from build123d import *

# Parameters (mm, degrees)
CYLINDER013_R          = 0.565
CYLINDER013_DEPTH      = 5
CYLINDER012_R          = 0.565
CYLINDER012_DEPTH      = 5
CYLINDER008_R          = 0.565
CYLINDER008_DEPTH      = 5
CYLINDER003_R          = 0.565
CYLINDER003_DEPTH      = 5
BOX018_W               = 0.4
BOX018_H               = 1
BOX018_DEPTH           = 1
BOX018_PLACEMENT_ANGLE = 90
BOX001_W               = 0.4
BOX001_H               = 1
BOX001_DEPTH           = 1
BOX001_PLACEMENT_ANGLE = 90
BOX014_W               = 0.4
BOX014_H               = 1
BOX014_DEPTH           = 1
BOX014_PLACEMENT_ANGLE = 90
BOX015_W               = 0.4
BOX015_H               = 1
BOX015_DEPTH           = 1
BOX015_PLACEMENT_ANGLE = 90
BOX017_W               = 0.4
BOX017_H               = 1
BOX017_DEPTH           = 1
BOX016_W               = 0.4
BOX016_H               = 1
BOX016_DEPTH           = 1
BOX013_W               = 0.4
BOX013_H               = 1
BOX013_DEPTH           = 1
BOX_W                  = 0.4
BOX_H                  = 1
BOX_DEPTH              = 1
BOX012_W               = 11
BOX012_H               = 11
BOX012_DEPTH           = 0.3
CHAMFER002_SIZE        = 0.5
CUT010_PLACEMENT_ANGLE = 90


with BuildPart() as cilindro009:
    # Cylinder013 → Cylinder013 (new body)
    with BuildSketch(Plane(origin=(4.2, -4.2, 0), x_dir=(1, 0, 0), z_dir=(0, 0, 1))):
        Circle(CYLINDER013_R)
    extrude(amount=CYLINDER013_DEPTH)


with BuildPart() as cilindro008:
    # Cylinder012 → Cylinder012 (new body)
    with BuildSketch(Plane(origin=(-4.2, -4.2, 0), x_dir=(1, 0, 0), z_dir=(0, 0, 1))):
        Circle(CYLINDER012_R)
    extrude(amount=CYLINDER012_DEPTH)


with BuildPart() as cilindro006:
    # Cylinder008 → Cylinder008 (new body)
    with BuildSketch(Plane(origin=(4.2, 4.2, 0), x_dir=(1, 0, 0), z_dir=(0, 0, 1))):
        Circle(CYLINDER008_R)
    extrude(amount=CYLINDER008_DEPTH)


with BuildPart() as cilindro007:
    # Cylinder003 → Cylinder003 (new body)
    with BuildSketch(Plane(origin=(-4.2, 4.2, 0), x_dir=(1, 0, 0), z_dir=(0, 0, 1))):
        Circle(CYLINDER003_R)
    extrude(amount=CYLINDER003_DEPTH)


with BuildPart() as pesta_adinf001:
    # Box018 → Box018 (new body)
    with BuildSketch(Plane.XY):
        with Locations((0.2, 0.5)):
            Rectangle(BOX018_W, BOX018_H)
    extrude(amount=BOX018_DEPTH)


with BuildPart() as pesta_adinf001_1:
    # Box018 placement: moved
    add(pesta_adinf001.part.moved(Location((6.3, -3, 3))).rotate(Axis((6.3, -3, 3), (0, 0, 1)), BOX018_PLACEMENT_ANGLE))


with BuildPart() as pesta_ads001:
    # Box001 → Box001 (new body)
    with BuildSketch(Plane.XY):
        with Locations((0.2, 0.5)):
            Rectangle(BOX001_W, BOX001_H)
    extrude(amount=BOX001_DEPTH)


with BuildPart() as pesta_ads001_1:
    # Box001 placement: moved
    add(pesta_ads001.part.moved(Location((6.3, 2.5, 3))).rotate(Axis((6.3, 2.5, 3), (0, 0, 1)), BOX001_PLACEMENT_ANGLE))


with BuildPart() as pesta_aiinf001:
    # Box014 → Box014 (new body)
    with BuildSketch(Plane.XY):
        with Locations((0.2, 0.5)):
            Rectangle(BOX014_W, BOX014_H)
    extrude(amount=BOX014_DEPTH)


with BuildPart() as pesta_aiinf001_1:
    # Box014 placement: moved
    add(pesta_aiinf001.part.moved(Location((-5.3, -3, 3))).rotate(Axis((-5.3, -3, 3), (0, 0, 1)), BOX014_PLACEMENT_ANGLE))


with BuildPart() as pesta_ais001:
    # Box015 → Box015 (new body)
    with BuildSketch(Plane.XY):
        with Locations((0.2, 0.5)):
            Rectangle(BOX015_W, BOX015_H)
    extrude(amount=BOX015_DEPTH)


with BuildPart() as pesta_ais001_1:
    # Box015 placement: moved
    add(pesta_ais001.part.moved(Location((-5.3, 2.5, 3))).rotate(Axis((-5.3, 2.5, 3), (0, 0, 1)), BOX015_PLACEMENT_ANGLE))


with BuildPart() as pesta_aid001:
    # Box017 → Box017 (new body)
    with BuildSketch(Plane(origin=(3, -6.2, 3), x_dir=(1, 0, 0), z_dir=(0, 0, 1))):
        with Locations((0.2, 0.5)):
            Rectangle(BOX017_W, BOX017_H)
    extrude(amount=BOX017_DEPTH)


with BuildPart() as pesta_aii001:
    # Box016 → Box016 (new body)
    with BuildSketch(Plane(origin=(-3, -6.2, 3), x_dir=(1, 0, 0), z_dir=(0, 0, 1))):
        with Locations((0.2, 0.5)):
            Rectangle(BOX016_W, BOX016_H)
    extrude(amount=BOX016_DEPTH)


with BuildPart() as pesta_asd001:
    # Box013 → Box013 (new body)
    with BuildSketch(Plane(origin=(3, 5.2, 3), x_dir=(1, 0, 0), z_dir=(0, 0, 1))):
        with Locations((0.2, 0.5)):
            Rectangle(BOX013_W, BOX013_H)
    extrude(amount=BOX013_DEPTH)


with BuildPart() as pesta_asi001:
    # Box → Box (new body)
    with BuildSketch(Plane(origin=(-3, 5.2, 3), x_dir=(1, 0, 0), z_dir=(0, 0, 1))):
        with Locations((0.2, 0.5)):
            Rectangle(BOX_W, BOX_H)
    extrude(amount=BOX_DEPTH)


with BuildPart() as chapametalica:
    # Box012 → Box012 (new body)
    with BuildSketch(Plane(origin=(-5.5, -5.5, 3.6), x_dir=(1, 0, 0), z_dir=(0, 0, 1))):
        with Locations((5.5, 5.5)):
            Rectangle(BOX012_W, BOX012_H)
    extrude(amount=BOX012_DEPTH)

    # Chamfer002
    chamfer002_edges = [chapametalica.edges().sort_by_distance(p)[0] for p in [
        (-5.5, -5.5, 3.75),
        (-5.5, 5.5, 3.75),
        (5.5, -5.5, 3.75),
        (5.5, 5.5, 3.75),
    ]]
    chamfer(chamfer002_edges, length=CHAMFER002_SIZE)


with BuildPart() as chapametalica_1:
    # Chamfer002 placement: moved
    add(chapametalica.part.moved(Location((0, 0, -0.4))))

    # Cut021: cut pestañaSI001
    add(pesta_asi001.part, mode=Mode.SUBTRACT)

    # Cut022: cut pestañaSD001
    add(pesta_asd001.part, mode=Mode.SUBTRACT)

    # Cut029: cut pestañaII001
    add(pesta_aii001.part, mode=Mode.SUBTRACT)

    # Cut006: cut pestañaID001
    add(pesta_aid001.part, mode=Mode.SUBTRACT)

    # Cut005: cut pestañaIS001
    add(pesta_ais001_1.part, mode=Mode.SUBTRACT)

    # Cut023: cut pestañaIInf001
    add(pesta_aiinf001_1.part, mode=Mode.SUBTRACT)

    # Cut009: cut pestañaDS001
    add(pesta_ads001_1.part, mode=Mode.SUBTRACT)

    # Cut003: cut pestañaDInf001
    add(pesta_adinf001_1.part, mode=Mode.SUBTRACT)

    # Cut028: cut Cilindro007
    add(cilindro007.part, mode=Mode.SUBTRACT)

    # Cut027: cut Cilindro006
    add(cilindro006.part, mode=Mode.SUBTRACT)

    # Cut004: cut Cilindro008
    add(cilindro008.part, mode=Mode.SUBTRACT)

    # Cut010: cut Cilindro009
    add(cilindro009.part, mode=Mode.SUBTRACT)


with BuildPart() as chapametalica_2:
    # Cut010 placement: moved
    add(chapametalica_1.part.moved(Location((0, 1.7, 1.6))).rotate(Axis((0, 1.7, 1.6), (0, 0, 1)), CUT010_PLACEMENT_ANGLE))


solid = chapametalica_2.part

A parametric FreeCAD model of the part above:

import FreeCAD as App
import Part
import Sketcher
from FreeCAD import Vector
Q = App.Units.Quantity


def edges_at(feature, points):
    """Names of the edges that pass closest to the given points."""
    edges = feature.Shape.Edges
    near = lambda p: min(range(len(edges)), key=lambda i: edges[i].distToShape(Part.Vertex(*p))[0])
    return sorted({f"Edge{near(p) + 1}" for p in points})


def add_polygon(sketch, points):
    """Adds a closed chain of lines whose ends are joined by coincident constraints."""
    first, n = sketch.GeometryCount, len(points)
    for a, b in zip(points, points[1:] + points[:1]):
        sketch.addGeometry(Part.LineSegment(App.Vector(*a, 0), App.Vector(*b, 0)), False)
    for i in range(n):
        sketch.addConstraint(Sketcher.Constraint("Coincident", first + i, 2, first + (i + 1) % n, 1))

doc = App.newDocument("Part")
body = doc.addObject("PartDesign::Body", "Body")

# Sketch on XY plane
sketch1 = doc.addObject("Sketcher::SketchObject", "Sketch")
body.addObject(sketch1)
sketch1.AttachmentSupport = (doc.XY_Plane, [""])
sketch1.MapMode = "FlatFace"
sketch1.addGeometry(Part.Circle(Vector(4.2, -4.2, 0), Vector(0, 0, 1), 0.6), False)
sketch1.addConstraint([
    Sketcher.Constraint("Diameter", 0, Q("1.13 mm")),
    Sketcher.Constraint("DistanceX", -1, 1, 0, 3, Q("4.2 mm")),
    Sketcher.Constraint("DistanceY", 0, 3, -1, 1, Q("4.2 mm")),
])
pad1 = doc.addObject("PartDesign::Pad", "Pad")
body.addObject(pad1)
pad1.Profile = sketch1
pad1.Length = 5
body2 = doc.addObject("PartDesign::Body", "Body001")

# Sketch on XY plane
sketch2 = doc.addObject("Sketcher::SketchObject", "Sketch001")
body2.addObject(sketch2)
sketch2.AttachmentSupport = (doc.getObject("XY_Plane001"), [""])
sketch2.MapMode = "FlatFace"
sketch2.addGeometry(Part.Circle(Vector(-4.2, -4.2, 0), Vector(0, 0, 1), 0.6), False)
sketch2.addConstraint([
    Sketcher.Constraint("Diameter", 0, Q("1.13 mm")),
    Sketcher.Constraint("DistanceX", 0, 3, -1, 1, Q("4.2 mm")),
    Sketcher.Constraint("DistanceY", 0, 3, -1, 1, Q("4.2 mm")),
])
pad2 = doc.addObject("PartDesign::Pad", "Pad001")
body2.addObject(pad2)
pad2.Profile = sketch2
pad2.Length = 5
body3 = doc.addObject("PartDesign::Body", "Body002")

# Sketch on XY plane
sketch3 = doc.addObject("Sketcher::SketchObject", "Sketch002")
body3.addObject(sketch3)
sketch3.AttachmentSupport = (doc.getObject("XY_Plane002"), [""])
sketch3.MapMode = "FlatFace"
sketch3.addGeometry(Part.Circle(Vector(4.2, 4.2, 0), Vector(0, 0, 1), 0.6), False)
sketch3.addConstraint([
    Sketcher.Constraint("Diameter", 0, Q("1.13 mm")),
    Sketcher.Constraint("DistanceX", -1, 1, 0, 3, Q("4.2 mm")),
    Sketcher.Constraint("DistanceY", -1, 1, 0, 3, Q("4.2 mm")),
])
pad3 = doc.addObject("PartDesign::Pad", "Pad002")
body3.addObject(pad3)
pad3.Profile = sketch3
pad3.Length = 5
body4 = doc.addObject("PartDesign::Body", "Body003")

# Sketch on XY plane
sketch4 = doc.addObject("Sketcher::SketchObject", "Sketch003")
body4.addObject(sketch4)
sketch4.AttachmentSupport = (doc.getObject("XY_Plane003"), [""])
sketch4.MapMode = "FlatFace"
sketch4.addGeometry(Part.Circle(Vector(-4.2, 4.2, 0), Vector(0, 0, 1), 0.6), False)
sketch4.addConstraint([
    Sketcher.Constraint("Diameter", 0, Q("1.13 mm")),
    Sketcher.Constraint("DistanceX", 0, 3, -1, 1, Q("4.2 mm")),
    Sketcher.Constraint("DistanceY", -1, 1, 0, 3, Q("4.2 mm")),
])
pad4 = doc.addObject("PartDesign::Pad", "Pad003")
body4.addObject(pad4)
pad4.Profile = sketch4
pad4.Length = 5
body5 = doc.addObject("PartDesign::Body", "Body004")

# Sketch on XY plane
sketch5 = doc.addObject("Sketcher::SketchObject", "Sketch004")
body5.addObject(sketch5)
sketch5.AttachmentSupport = (doc.getObject("XY_Plane004"), [""])
sketch5.MapMode = "FlatFace"
add_polygon(sketch5, [(0, 1), (0, 0), (0.4, 0), (0.4, 1)])  # lines 0-3
sketch5.addConstraint([
    Sketcher.Constraint("Vertical", 0),
    Sketcher.Constraint("Horizontal", 1),
    Sketcher.Constraint("Vertical", 2),
    Sketcher.Constraint("Horizontal", 3),
    Sketcher.Constraint("Coincident", 0, 2, -1, 1),
    Sketcher.Constraint("DistanceY", 0, 2, 0, 1, Q("1 mm")),
    Sketcher.Constraint("DistanceX", 1, 1, 1, 2, Q("0.4 mm")),
])
pad5 = doc.addObject("PartDesign::Pad", "Pad004")
body5.addObject(pad5)
pad5.Profile = sketch5
pad5.Length = 1
body6 = doc.addObject("PartDesign::Body", "Body005")
doc.recompute()

body5.Placement = App.Placement(Vector(6.3, -3, 3), App.Rotation(Vector(0, 0, 1), 90))
boolean = doc.addObject("PartDesign::Boolean", "Boolean")
body6.addObject(boolean)
boolean.Type = "Fuse"
boolean.addObjects([body5])
body7 = doc.addObject("PartDesign::Body", "Body006")

# Sketch on XY plane
sketch6 = doc.addObject("Sketcher::SketchObject", "Sketch005")
body7.addObject(sketch6)
sketch6.AttachmentSupport = (doc.getObject("XY_Plane006"), [""])
sketch6.MapMode = "FlatFace"
add_polygon(sketch6, [(0, 1), (0, 0), (0.4, 0), (0.4, 1)])  # lines 0-3
sketch6.addConstraint([
    Sketcher.Constraint("Vertical", 0),
    Sketcher.Constraint("Horizontal", 1),
    Sketcher.Constraint("Vertical", 2),
    Sketcher.Constraint("Horizontal", 3),
    Sketcher.Constraint("Coincident", 0, 2, -1, 1),
    Sketcher.Constraint("DistanceY", 0, 2, 0, 1, Q("1 mm")),
    Sketcher.Constraint("DistanceX", 1, 1, 1, 2, Q("0.4 mm")),
])
pad6 = doc.addObject("PartDesign::Pad", "Pad005")
body7.addObject(pad6)
pad6.Profile = sketch6
pad6.Length = 1
body8 = doc.addObject("PartDesign::Body", "Body007")
doc.recompute()

body7.Placement = App.Placement(Vector(6.3, 2.5, 3), App.Rotation(Vector(0, 0, 1), 90))
boolean2 = doc.addObject("PartDesign::Boolean", "Boolean001")
body8.addObject(boolean2)
boolean2.Type = "Fuse"
boolean2.addObjects([body7])
body9 = doc.addObject("PartDesign::Body", "Body008")

# Sketch on XY plane
sketch7 = doc.addObject("Sketcher::SketchObject", "Sketch006")
body9.addObject(sketch7)
sketch7.AttachmentSupport = (doc.getObject("XY_Plane008"), [""])
sketch7.MapMode = "FlatFace"
add_polygon(sketch7, [(0, 1), (0, 0), (0.4, 0), (0.4, 1)])  # lines 0-3
sketch7.addConstraint([
    Sketcher.Constraint("Vertical", 0),
    Sketcher.Constraint("Horizontal", 1),
    Sketcher.Constraint("Vertical", 2),
    Sketcher.Constraint("Horizontal", 3),
    Sketcher.Constraint("Coincident", 0, 2, -1, 1),
    Sketcher.Constraint("DistanceY", 0, 2, 0, 1, Q("1 mm")),
    Sketcher.Constraint("DistanceX", 1, 1, 1, 2, Q("0.4 mm")),
])
pad7 = doc.addObject("PartDesign::Pad", "Pad006")
body9.addObject(pad7)
pad7.Profile = sketch7
pad7.Length = 1
body10 = doc.addObject("PartDesign::Body", "Body009")
doc.recompute()

body9.Placement = App.Placement(Vector(-5.3, -3, 3), App.Rotation(Vector(0, 0, 1), 90))
boolean3 = doc.addObject("PartDesign::Boolean", "Boolean002")
body10.addObject(boolean3)
boolean3.Type = "Fuse"
boolean3.addObjects([body9])
body11 = doc.addObject("PartDesign::Body", "Body010")

# Sketch on XY plane
sketch8 = doc.addObject("Sketcher::SketchObject", "Sketch007")
body11.addObject(sketch8)
sketch8.AttachmentSupport = (doc.getObject("XY_Plane010"), [""])
sketch8.MapMode = "FlatFace"
add_polygon(sketch8, [(0, 1), (0, 0), (0.4, 0), (0.4, 1)])  # lines 0-3
sketch8.addConstraint([
    Sketcher.Constraint("Vertical", 0),
    Sketcher.Constraint("Horizontal", 1),
    Sketcher.Constraint("Vertical", 2),
    Sketcher.Constraint("Horizontal", 3),
    Sketcher.Constraint("Coincident", 0, 2, -1, 1),
    Sketcher.Constraint("DistanceY", 0, 2, 0, 1, Q("1 mm")),
    Sketcher.Constraint("DistanceX", 1, 1, 1, 2, Q("0.4 mm")),
])
pad8 = doc.addObject("PartDesign::Pad", "Pad007")
body11.addObject(pad8)
pad8.Profile = sketch8
pad8.Length = 1
body12 = doc.addObject("PartDesign::Body", "Body011")
doc.recompute()

body11.Placement = App.Placement(Vector(-5.3, 2.5, 3), App.Rotation(Vector(0, 0, 1), 90))
boolean4 = doc.addObject("PartDesign::Boolean", "Boolean003")
body12.addObject(boolean4)
boolean4.Type = "Fuse"
boolean4.addObjects([body11])
body13 = doc.addObject("PartDesign::Body", "Body012")

# Sketch on XY plane
sketch9 = doc.addObject("Sketcher::SketchObject", "Sketch008")
body13.addObject(sketch9)
sketch9.AttachmentSupport = (doc.getObject("XY_Plane012"), [""])
sketch9.MapMode = "FlatFace"
sketch9.AttachmentOffset = App.Placement(Vector(0, 0, 3), App.Rotation())
add_polygon(sketch9, [(3, -5.2), (3, -6.2), (3.4, -6.2), (3.4, -5.2)])  # lines 0-3
sketch9.addConstraint([
    Sketcher.Constraint("Vertical", 0),
    Sketcher.Constraint("Horizontal", 1),
    Sketcher.Constraint("Vertical", 2),
    Sketcher.Constraint("Horizontal", 3),
    Sketcher.Constraint("DistanceY", 0, 2, 0, 1, Q("1 mm")),
    Sketcher.Constraint("DistanceX", 1, 1, 1, 2, Q("0.4 mm")),
    Sketcher.Constraint("DistanceX", -1, 1, 0, 2, Q("3 mm")),
    Sketcher.Constraint("DistanceY", 0, 2, -1, 1, Q("6.2 mm")),
])
pad9 = doc.addObject("PartDesign::Pad", "Pad008")
body13.addObject(pad9)
pad9.Profile = sketch9
pad9.Length = 1
body14 = doc.addObject("PartDesign::Body", "Body013")

# Sketch on XY plane
sketch10 = doc.addObject("Sketcher::SketchObject", "Sketch009")
body14.addObject(sketch10)
sketch10.AttachmentSupport = (doc.getObject("XY_Plane013"), [""])
sketch10.MapMode = "FlatFace"
sketch10.AttachmentOffset = App.Placement(Vector(0, 0, 3), App.Rotation())
add_polygon(sketch10, [(-3, -5.2), (-3, -6.2), (-2.6, -6.2), (-2.6, -5.2)])  # lines 0-3
sketch10.addConstraint([
    Sketcher.Constraint("Vertical", 0),
    Sketcher.Constraint("Horizontal", 1),
    Sketcher.Constraint("Vertical", 2),
    Sketcher.Constraint("Horizontal", 3),
    Sketcher.Constraint("DistanceY", 0, 2, 0, 1, Q("1 mm")),
    Sketcher.Constraint("DistanceX", 1, 1, 1, 2, Q("0.4 mm")),
    Sketcher.Constraint("DistanceX", 0, 2, -1, 1, Q("3 mm")),
    Sketcher.Constraint("DistanceY", 0, 2, -1, 1, Q("6.2 mm")),
])
pad10 = doc.addObject("PartDesign::Pad", "Pad009")
body14.addObject(pad10)
pad10.Profile = sketch10
pad10.Length = 1
body15 = doc.addObject("PartDesign::Body", "Body014")

# Sketch on XY plane
sketch11 = doc.addObject("Sketcher::SketchObject", "Sketch010")
body15.addObject(sketch11)
sketch11.AttachmentSupport = (doc.getObject("XY_Plane014"), [""])
sketch11.MapMode = "FlatFace"
sketch11.AttachmentOffset = App.Placement(Vector(0, 0, 3), App.Rotation())
add_polygon(sketch11, [(3, 6.2), (3, 5.2), (3.4, 5.2), (3.4, 6.2)])  # lines 0-3
sketch11.addConstraint([
    Sketcher.Constraint("Vertical", 0),
    Sketcher.Constraint("Horizontal", 1),
    Sketcher.Constraint("Vertical", 2),
    Sketcher.Constraint("Horizontal", 3),
    Sketcher.Constraint("DistanceY", 0, 2, 0, 1, Q("1 mm")),
    Sketcher.Constraint("DistanceX", 1, 1, 1, 2, Q("0.4 mm")),
    Sketcher.Constraint("DistanceX", -1, 1, 0, 2, Q("3 mm")),
    Sketcher.Constraint("DistanceY", -1, 1, 0, 2, Q("5.2 mm")),
])
pad11 = doc.addObject("PartDesign::Pad", "Pad010")
body15.addObject(pad11)
pad11.Profile = sketch11
pad11.Length = 1
body16 = doc.addObject("PartDesign::Body", "Body015")

# Sketch on XY plane
sketch12 = doc.addObject("Sketcher::SketchObject", "Sketch011")
body16.addObject(sketch12)
sketch12.AttachmentSupport = (doc.getObject("XY_Plane015"), [""])
sketch12.MapMode = "FlatFace"
sketch12.AttachmentOffset = App.Placement(Vector(0, 0, 3), App.Rotation())
add_polygon(sketch12, [(-3, 6.2), (-3, 5.2), (-2.6, 5.2), (-2.6, 6.2)])  # lines 0-3
sketch12.addConstraint([
    Sketcher.Constraint("Vertical", 0),
    Sketcher.Constraint("Horizontal", 1),
    Sketcher.Constraint("Vertical", 2),
    Sketcher.Constraint("Horizontal", 3),
    Sketcher.Constraint("DistanceY", 0, 2, 0, 1, Q("1 mm")),
    Sketcher.Constraint("DistanceX", 1, 1, 1, 2, Q("0.4 mm")),
    Sketcher.Constraint("DistanceX", 0, 2, -1, 1, Q("3 mm")),
    Sketcher.Constraint("DistanceY", -1, 1, 0, 2, Q("5.2 mm")),
])
pad12 = doc.addObject("PartDesign::Pad", "Pad011")
body16.addObject(pad12)
pad12.Profile = sketch12
pad12.Length = 1
body17 = doc.addObject("PartDesign::Body", "Body016")

# Sketch on XY plane
sketch13 = doc.addObject("Sketcher::SketchObject", "Sketch012")
body17.addObject(sketch13)
sketch13.AttachmentSupport = (doc.getObject("XY_Plane016"), [""])
sketch13.MapMode = "FlatFace"
sketch13.AttachmentOffset = App.Placement(Vector(0, 0, 3.6), App.Rotation())
add_polygon(sketch13, [(-6, 6), (-6, -6), (6, -6), (6, 6)])  # lines 0-3
sketch13.addConstraint([
    Sketcher.Constraint("Vertical", 0),
    Sketcher.Constraint("Horizontal", 1),
    Sketcher.Constraint("Vertical", 2),
    Sketcher.Constraint("Horizontal", 3),
    Sketcher.Constraint("Symmetric", 0, 2, 2, 2, -1, 1),
    Sketcher.Constraint("Equal", 3, 0),
    Sketcher.Constraint("DistanceX", 1, 1, 1, 2, Q("11 mm")),
])
pad13 = doc.addObject("PartDesign::Pad", "Pad012")
body17.addObject(pad13)
pad13.Profile = sketch13
pad13.Length = 0.3
doc.recompute()

chamfer = doc.addObject("PartDesign::Chamfer", "Chamfer")
body17.addObject(chamfer)
chamfer.Base = (pad13, edges_at(pad13, [
    (-5.5, -5.5, 3.75),
    (-5.5, 5.5, 3.75),
    (5.5, -5.5, 3.75),
    (5.5, 5.5, 3.75),
]))
chamfer.Size = 0.5
body18 = doc.addObject("PartDesign::Body", "Body017")
doc.recompute()

body17.Placement = App.Placement(Vector(0, 0, -0.4), App.Rotation(Vector(0, 0, 1), 0))
boolean5 = doc.addObject("PartDesign::Boolean", "Boolean004")
body18.addObject(boolean5)
boolean5.Type = "Fuse"
boolean5.addObjects([body17])
doc.recompute()

boolean6 = doc.addObject("PartDesign::Boolean", "Boolean005")
body18.addObject(boolean6)
boolean6.Type = "Cut"
boolean6.addObjects([body16])
doc.recompute()

boolean7 = doc.addObject("PartDesign::Boolean", "Boolean006")
body18.addObject(boolean7)
boolean7.Type = "Cut"
boolean7.addObjects([body15])
doc.recompute()

boolean8 = doc.addObject("PartDesign::Boolean", "Boolean007")
body18.addObject(boolean8)
boolean8.Type = "Cut"
boolean8.addObjects([body14])
doc.recompute()

boolean9 = doc.addObject("PartDesign::Boolean", "Boolean008")
body18.addObject(boolean9)
boolean9.Type = "Cut"
boolean9.addObjects([body13])
doc.recompute()

boolean10 = doc.addObject("PartDesign::Boolean", "Boolean009")
body18.addObject(boolean10)
boolean10.Type = "Cut"
boolean10.addObjects([body12])
doc.recompute()

boolean11 = doc.addObject("PartDesign::Boolean", "Boolean010")
body18.addObject(boolean11)
boolean11.Type = "Cut"
boolean11.addObjects([body10])
doc.recompute()

boolean12 = doc.addObject("PartDesign::Boolean", "Boolean011")
body18.addObject(boolean12)
boolean12.Type = "Cut"
boolean12.addObjects([body8])
doc.recompute()

boolean13 = doc.addObject("PartDesign::Boolean", "Boolean012")
body18.addObject(boolean13)
boolean13.Type = "Cut"
boolean13.addObjects([body6])
doc.recompute()

boolean14 = doc.addObject("PartDesign::Boolean", "Boolean013")
body18.addObject(boolean14)
boolean14.Type = "Cut"
boolean14.addObjects([body4])
doc.recompute()

boolean15 = doc.addObject("PartDesign::Boolean", "Boolean014")
body18.addObject(boolean15)
boolean15.Type = "Cut"
boolean15.addObjects([body3])
doc.recompute()

boolean16 = doc.addObject("PartDesign::Boolean", "Boolean015")
body18.addObject(boolean16)
boolean16.Type = "Cut"
boolean16.addObjects([body2])
doc.recompute()

boolean17 = doc.addObject("PartDesign::Boolean", "Boolean016")
body18.addObject(boolean17)
boolean17.Type = "Cut"
boolean17.addObjects([body])
body19 = doc.addObject("PartDesign::Body", "Body018")
doc.recompute()

body18.Placement = App.Placement(Vector(0, 1.7, 1.6), App.Rotation(Vector(0, 0, 1), 90))
boolean18 = doc.addObject("PartDesign::Boolean", "Boolean017")
body19.addObject(boolean18)
boolean18.Type = "Fuse"
boolean18.addObjects([body18])

doc.recompute()
